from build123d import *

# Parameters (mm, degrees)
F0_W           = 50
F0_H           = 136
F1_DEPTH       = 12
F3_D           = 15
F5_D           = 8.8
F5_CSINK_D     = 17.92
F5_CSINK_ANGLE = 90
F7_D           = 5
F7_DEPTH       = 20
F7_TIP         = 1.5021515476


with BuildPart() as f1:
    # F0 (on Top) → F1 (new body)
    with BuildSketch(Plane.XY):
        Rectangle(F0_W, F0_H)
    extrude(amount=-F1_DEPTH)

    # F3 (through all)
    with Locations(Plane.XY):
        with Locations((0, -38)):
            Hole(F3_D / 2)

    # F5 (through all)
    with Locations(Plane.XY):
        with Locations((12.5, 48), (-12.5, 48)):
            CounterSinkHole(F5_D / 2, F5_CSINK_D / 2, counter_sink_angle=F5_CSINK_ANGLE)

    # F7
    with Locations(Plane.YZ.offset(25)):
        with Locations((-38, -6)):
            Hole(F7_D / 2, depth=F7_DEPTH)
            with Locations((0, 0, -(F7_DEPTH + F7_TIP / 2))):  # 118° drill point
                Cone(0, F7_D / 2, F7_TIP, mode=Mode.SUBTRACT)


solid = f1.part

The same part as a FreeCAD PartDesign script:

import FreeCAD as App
import Part
import Sketcher
from FreeCAD import Vector

doc = App.newDocument("Part")
body = doc.addObject("PartDesign::Body", "Body")

# Sketch on XY plane
sketch1 = body.newObject("Sketcher::SketchObject", "Sketch")
sketch1.AttachmentSupport = (doc.getObject("XY_Plane"), [""])
sketch1.MapMode = "FlatFace"
sketch1.addGeometry(Part.LineSegment(Vector(-25, 68, 0), Vector(-25, -68, 0)), False)
sketch1.addGeometry(Part.LineSegment(Vector(-25, -68, 0), Vector(25, -68, 0)), False)
sketch1.addGeometry(Part.LineSegment(Vector(25, -68, 0), Vector(25, 68, 0)), False)
sketch1.addGeometry(Part.LineSegment(Vector(25, 68, 0), Vector(-25, 68, 0)), False)
sketch1.addConstraint(Sketcher.Constraint("Coincident", 0, 2, 1, 1))
sketch1.addConstraint(Sketcher.Constraint("Coincident", 1, 2, 2, 1))
sketch1.addConstraint(Sketcher.Constraint("Coincident", 2, 2, 3, 1))
sketch1.addConstraint(Sketcher.Constraint("Coincident", 3, 2, 0, 1))
sketch1.addConstraint(Sketcher.Constraint("Vertical", 0))
sketch1.addConstraint(Sketcher.Constraint("Horizontal", 1))
sketch1.addConstraint(Sketcher.Constraint("Vertical", 2))
sketch1.addConstraint(Sketcher.Constraint("Horizontal", 3))
sketch1.addConstraint(Sketcher.Constraint("Symmetric", 0, 2, 2, 2, -1, 1))
sketch1.addConstraint(Sketcher.Constraint("DistanceX", 1, 1, 1, 2, 50.0))
sketch1.addConstraint(Sketcher.Constraint("DistanceY", 0, 2, 0, 1, 136.0))
pad1 = body.newObject("PartDesign::Pad", "Pad")
pad1.Profile = sketch1
pad1.Length = 12
pad1.Reversed = True

# Sketch on XY plane
sketch2 = body.newObject("Sketcher::SketchObject", "Sketch001")
sketch2.AttachmentSupport = (doc.getObject("XY_Plane"), [""])
sketch2.MapMode = "FlatFace"
sketch2.addGeometry(Part.Circle(Vector(0, -38, 0), Vector(0, 0, 1), 8), False)
sketch2.addConstraint(Sketcher.Constraint("PointOnObject", 0, 3, -2))
sketch2.addConstraint(Sketcher.Constraint("Diameter", 0, 15.0))
sketch2.addConstraint(Sketcher.Constraint("DistanceY", 0, 3, -1, 1, 38.0))
doc.recompute()
hole = body.newObject("PartDesign::Hole", "Hole")
hole.Profile = sketch2
hole.ThreadType = "None"
hole.Diameter = 15
hole.DepthType = "ThroughAll"

# Sketch on XY plane
sketch3 = body.newObject("Sketcher::SketchObject", "Sketch002")
sketch3.AttachmentSupport = (doc.getObject("XY_Plane"), [""])
sketch3.MapMode = "FlatFace"
sketch3.addGeometry(Part.Circle(Vector(12.5, 48, 0), Vector(0, 0, 1), 4.4), False)
sketch3.addGeometry(Part.Circle(Vector(-12.5, 48, 0), Vector(0, 0, 1), 4.4), False)
sketch3.addConstraint(Sketcher.Constraint("Equal", 0, 1))
sketch3.addConstraint(Sketcher.Constraint("Symmetric", 0, 3, 1, 3, -2))
sketch3.addConstraint(Sketcher.Constraint("Diameter", 0, 8.8))
sketch3.addConstraint(Sketcher.Constraint("DistanceY", -1, 1, 0, 3, 48.0))
sketch3.addConstraint(Sketcher.Constraint("DistanceX", 1, 3, 0, 3, 25.0))
doc.recompute()
hole2 = body.newObject("PartDesign::Hole", "Hole001")
hole2.Profile = sketch3
hole2.ThreadType = "None"
hole2.Diameter = 8.8
hole2.DepthType = "ThroughAll"
hole2.HoleCutType = "Countersink"
hole2.HoleCutDiameter = 17.92
hole2.HoleCutCountersinkAngle = 90

# Sketch on YZ plane
sketch4 = body.newObject("Sketcher::SketchObject", "Sketch003")
sketch4.AttachmentSupport = (doc.getObject("YZ_Plane"), [""])
sketch4.MapMode = "FlatFace"
sketch4.AttachmentOffset = App.Placement(Vector(0, 0, 25), App.Rotation())
sketch4.addGeometry(Part.Circle(Vector(-38, -6, 0), Vector(0, 0, 1), 2.5), False)
sketch4.addConstraint(Sketcher.Constraint("Diameter", 0, 5.0))
sketch4.addConstraint(Sketcher.Constraint("DistanceX", 0, 3, -1, 1, 38.0))
sketch4.addConstraint(Sketcher.Constraint("DistanceY", 0, 3, -1, 1, 6.0))
doc.recompute()
hole3 = body.newObject("PartDesign::Hole", "Hole002")
hole3.Profile = sketch4
hole3.ThreadType = "None"
hole3.Diameter = 5
hole3.DepthType = "Dimension"
hole3.Depth = 20
hole3.DrillPoint = "Angled"
hole3.DrillPointAngle = 118

doc.recompute()
